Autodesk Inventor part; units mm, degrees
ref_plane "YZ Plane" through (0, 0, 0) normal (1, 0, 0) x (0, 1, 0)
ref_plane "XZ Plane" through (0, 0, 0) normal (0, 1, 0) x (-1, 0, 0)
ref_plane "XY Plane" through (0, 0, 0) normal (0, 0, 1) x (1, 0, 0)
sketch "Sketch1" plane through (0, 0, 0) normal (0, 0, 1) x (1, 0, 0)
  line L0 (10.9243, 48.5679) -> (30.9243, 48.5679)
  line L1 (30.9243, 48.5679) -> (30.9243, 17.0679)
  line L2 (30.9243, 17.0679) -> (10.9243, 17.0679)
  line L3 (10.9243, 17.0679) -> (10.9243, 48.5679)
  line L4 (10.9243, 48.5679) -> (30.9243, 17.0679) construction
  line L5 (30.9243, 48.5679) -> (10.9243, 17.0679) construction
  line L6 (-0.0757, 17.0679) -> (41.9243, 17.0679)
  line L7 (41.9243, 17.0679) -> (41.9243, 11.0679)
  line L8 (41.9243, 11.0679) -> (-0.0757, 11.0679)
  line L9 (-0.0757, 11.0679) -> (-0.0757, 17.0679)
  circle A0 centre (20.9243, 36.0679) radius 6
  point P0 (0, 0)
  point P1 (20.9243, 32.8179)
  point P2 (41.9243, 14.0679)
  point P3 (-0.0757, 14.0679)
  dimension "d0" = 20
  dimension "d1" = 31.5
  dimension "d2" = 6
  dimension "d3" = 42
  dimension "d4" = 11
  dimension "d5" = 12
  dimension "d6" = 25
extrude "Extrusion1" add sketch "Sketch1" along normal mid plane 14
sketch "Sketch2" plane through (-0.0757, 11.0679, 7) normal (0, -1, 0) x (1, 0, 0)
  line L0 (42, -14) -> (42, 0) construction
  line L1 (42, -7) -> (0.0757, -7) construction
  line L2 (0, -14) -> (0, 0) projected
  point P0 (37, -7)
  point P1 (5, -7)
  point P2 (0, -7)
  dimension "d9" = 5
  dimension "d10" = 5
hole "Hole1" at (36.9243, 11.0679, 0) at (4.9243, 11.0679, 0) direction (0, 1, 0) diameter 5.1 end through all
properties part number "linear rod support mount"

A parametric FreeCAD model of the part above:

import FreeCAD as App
import Part
import Sketcher
Q = App.Units.Quantity


def add_polygon(sketch, points):
    """Adds a closed chain of lines whose ends are joined by coincident constraints."""
    first, n = sketch.GeometryCount, len(points)
    for a, b in zip(points, points[1:] + points[:1]):
        sketch.addGeometry(Part.LineSegment(App.Vector(*a, 0), App.Vector(*b, 0)), False)
    for i in range(n):
        sketch.addConstraint(Sketcher.Constraint("Coincident", first + i, 2, first + (i + 1) % n, 1))

doc = App.newDocument("Part")
body = doc.addObject("PartDesign::Body", "Body")

sketch1 = body.newObject("Sketcher::SketchObject", "Sketch")
sketch1.AttachmentSupport = (doc.getObject("XY_Plane"), [""])
sketch1.MapMode = "FlatFace"
add_polygon(sketch1, [(30.9243, 48.5679), (10.9243, 48.5679), (10.9243, 17.0679), (-0.0757, 17.0679), (-0.0757, 11.0679), (41.9243, 11.0679), (41.9243, 17.0679), (30.9243, 17.0679)])
sketch1.addGeometry(Part.Circle(App.Vector(20.9243, 36.0679, 0), App.Vector(0, 0, 1), 6), False)
sketch1.addConstraint(Sketcher.Constraint("Horizontal", 0))
sketch1.addConstraint(Sketcher.Constraint("Vertical", 1))
sketch1.addConstraint(Sketcher.Constraint("Horizontal", 2))
sketch1.addConstraint(Sketcher.Constraint("Vertical", 3))
sketch1.addConstraint(Sketcher.Constraint("Horizontal", 4))
sketch1.addConstraint(Sketcher.Constraint("Vertical", 5))
sketch1.addConstraint(Sketcher.Constraint("Horizontal", 6))
sketch1.addConstraint(Sketcher.Constraint("Vertical", 7))
sketch1.addConstraint(Sketcher.Constraint("Horizontal", 2, 2, 5, 2))
sketch1.addConstraint(Sketcher.Constraint("Equal", 2, 6))
sketch1.addConstraint(Sketcher.Constraint("Diameter", 8, Q("12 mm")))
sketch1.addConstraint(Sketcher.Constraint("DistanceX", 0, 2, 0, 1, Q("20 mm")))
sketch1.addConstraint(Sketcher.Constraint("DistanceX", 2, 2, 2, 1, Q("11 mm")))
sketch1.addConstraint(Sketcher.Constraint("DistanceY", 3, 2, 3, 1, Q("6 mm")))
sketch1.addConstraint(Sketcher.Constraint("DistanceY", 1, 2, 1, 1, Q("31.5 mm")))
sketch1.addConstraint(Sketcher.Constraint("DistanceY", 3, 2, 8, 3, Q("25 mm")))
sketch1.addConstraint(Sketcher.Constraint("DistanceX", 0, 2, 8, 3, Q("10 mm")))
sketch1.addConstraint(Sketcher.Constraint("DistanceY", -1, 1, 8, 3, Q("36.068 mm")))
sketch1.addConstraint(Sketcher.Constraint("DistanceX", -1, 1, 8, 3, Q("20.9243 mm")))
pad1 = body.newObject("PartDesign::Pad", "Pad")
pad1.Profile = sketch1
pad1.Length = 14
pad1.Midplane = True

sketch2 = body.newObject("Sketcher::SketchObject", "Sketch001")
sketch2.AttachmentSupport = (doc.getObject("XZ_Plane"), [""])
sketch2.MapMode = "FlatFace"
sketch2.AttachmentOffset = App.Placement(App.Vector(0, 0, -11.0679), App.Rotation())
sketch2.addGeometry(Part.Circle(App.Vector(36.9243, 0, 0), App.Vector(0, 0, 1), 2.55), False)
sketch2.addGeometry(Part.Circle(App.Vector(4.9243, 0, 0), App.Vector(0, 0, 1), 2.55), False)
sketch2.addConstraint(Sketcher.Constraint("Equal", 0, 1))
sketch2.addConstraint(Sketcher.Constraint("PointOnObject", 0, 3, -1))
sketch2.addConstraint(Sketcher.Constraint("PointOnObject", 1, 3, -1))
sketch2.addConstraint(Sketcher.Constraint("Diameter", 0, Q("5.1 mm")))
sketch2.addConstraint(Sketcher.Constraint("DistanceX", 1, 3, 0, 3, Q("32 mm")))
sketch2.addConstraint(Sketcher.Constraint("DistanceX", -1, 1, 0, 3, Q("36.9243 mm")))
doc.recompute()
hole = body.newObject("PartDesign::Hole", "Hole")
hole.Profile = sketch2
hole.ThreadType = "None"
hole.Diameter = 5.1
hole.DepthType = "ThroughAll"

doc.recompute()
